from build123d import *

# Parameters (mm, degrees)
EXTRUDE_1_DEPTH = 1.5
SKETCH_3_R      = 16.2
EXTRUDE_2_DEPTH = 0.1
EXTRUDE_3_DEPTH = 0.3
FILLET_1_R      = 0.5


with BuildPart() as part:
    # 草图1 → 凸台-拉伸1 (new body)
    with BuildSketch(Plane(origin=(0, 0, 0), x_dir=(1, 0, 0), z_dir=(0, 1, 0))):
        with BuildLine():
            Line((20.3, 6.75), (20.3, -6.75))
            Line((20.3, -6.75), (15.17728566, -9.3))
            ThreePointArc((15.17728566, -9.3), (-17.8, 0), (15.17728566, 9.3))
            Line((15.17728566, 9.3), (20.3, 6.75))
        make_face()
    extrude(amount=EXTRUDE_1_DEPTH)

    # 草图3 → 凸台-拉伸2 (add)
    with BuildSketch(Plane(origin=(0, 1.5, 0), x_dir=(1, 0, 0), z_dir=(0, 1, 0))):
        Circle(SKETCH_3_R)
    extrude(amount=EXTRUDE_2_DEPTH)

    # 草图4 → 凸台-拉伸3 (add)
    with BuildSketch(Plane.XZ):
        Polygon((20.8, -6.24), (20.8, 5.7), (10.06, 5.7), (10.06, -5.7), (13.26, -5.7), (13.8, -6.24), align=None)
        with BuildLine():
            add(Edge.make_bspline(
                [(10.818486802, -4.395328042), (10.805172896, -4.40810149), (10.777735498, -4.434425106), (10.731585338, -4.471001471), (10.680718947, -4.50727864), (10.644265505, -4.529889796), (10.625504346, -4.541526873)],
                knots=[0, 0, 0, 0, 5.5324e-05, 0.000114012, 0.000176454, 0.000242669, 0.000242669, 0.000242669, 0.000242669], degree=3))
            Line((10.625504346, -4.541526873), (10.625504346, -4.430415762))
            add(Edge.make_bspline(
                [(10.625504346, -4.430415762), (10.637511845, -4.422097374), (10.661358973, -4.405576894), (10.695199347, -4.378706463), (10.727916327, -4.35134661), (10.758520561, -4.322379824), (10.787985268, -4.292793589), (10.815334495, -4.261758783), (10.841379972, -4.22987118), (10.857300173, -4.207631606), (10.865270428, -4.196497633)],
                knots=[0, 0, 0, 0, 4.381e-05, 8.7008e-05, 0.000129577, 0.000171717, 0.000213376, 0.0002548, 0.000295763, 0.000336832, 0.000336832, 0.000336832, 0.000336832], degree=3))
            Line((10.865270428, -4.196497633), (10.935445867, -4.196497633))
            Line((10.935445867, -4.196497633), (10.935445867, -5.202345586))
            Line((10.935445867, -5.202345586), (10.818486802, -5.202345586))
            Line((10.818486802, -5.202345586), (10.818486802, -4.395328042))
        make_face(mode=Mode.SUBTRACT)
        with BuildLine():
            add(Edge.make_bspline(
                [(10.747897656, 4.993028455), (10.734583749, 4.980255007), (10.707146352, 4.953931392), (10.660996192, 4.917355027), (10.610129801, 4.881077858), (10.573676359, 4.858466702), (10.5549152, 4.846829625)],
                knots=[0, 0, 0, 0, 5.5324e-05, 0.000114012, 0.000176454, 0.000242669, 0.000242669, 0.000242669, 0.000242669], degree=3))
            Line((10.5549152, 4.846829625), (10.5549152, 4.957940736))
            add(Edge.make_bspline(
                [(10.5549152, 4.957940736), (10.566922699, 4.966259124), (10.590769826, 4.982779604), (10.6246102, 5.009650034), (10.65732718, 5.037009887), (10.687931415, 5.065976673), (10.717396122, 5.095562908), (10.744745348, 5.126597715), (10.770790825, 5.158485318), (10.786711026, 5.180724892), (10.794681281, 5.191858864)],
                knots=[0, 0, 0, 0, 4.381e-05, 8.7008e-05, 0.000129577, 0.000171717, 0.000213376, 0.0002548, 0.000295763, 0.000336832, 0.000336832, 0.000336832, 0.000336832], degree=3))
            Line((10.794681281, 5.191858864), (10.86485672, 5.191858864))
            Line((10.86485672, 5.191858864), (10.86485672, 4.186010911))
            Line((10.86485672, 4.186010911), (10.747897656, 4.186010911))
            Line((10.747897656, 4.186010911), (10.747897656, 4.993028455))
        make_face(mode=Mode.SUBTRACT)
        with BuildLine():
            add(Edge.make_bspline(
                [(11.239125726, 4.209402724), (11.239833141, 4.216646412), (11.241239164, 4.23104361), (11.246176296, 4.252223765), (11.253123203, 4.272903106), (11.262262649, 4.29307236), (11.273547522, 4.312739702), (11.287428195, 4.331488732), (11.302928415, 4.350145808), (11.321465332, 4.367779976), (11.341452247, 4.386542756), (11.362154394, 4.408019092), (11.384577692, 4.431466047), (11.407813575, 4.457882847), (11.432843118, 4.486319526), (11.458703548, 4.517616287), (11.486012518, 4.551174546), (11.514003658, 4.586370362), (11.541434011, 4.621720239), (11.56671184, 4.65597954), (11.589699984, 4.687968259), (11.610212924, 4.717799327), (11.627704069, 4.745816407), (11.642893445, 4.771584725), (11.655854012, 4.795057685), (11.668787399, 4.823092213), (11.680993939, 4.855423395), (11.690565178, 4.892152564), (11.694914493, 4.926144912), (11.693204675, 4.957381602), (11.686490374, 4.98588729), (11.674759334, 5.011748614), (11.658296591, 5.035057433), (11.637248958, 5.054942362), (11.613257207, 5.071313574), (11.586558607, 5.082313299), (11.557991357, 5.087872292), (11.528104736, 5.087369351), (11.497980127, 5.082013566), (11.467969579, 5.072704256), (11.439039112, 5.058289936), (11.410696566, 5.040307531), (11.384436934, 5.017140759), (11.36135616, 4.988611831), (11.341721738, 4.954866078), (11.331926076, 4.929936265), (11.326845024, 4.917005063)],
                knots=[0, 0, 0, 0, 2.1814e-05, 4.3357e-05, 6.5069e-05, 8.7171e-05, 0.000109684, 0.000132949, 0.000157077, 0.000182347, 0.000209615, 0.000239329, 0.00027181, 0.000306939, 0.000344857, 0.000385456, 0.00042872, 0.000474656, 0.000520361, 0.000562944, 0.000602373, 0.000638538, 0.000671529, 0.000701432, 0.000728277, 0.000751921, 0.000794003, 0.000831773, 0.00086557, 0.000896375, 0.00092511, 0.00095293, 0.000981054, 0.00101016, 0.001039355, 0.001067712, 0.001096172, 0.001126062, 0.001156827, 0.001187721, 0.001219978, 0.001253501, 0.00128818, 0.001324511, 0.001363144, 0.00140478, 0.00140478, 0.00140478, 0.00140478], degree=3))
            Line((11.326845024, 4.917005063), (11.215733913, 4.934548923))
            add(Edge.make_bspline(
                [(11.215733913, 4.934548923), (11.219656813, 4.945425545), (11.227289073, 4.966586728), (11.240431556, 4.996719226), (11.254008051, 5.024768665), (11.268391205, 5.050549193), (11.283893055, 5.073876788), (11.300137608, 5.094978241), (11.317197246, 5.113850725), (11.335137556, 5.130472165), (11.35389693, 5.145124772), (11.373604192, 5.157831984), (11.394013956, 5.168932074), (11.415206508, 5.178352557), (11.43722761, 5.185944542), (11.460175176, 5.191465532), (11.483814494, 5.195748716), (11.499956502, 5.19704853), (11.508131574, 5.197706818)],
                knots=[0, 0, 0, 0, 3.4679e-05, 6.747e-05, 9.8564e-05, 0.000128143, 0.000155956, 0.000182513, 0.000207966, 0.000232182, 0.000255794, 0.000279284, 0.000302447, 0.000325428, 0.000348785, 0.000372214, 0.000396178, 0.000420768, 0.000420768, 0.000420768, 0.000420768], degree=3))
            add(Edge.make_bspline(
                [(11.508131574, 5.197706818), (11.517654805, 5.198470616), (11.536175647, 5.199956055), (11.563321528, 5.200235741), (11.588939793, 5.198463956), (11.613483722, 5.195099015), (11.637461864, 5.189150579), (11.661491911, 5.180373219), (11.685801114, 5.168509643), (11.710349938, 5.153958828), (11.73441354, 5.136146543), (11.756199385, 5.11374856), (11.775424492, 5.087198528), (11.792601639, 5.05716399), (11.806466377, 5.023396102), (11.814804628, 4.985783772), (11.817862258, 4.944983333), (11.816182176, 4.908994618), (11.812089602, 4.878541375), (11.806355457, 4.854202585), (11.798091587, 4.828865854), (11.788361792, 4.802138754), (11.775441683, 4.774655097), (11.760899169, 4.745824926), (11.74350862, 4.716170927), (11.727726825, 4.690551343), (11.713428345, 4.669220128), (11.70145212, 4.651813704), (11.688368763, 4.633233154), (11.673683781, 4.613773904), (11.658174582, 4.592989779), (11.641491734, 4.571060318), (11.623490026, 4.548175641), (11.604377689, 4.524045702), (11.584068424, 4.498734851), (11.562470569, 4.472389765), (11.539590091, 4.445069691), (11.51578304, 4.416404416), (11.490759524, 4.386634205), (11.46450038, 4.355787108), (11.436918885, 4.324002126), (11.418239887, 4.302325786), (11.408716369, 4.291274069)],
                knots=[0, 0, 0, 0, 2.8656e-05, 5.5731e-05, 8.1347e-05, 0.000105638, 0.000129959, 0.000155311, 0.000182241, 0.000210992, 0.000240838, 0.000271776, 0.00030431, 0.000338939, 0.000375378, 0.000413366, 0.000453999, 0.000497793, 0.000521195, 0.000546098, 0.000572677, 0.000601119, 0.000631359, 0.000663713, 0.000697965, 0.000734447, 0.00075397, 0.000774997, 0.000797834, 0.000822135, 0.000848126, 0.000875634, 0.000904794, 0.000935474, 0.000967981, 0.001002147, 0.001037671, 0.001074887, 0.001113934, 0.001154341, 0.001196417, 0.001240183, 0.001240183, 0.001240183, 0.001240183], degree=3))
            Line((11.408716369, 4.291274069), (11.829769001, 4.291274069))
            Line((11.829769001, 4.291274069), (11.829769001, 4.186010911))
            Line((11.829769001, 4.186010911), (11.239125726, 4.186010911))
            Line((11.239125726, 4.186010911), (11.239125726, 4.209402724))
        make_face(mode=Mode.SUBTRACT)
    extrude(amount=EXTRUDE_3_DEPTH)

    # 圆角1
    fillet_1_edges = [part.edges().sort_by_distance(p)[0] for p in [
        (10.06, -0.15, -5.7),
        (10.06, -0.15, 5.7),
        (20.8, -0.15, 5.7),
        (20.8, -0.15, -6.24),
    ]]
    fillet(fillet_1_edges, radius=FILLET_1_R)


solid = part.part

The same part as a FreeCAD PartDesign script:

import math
import FreeCAD as App
import Part
import Sketcher

V = App.Vector


def edges_at(feature, points):
    """Names of the edges that pass closest to the given points."""
    edges = feature.Shape.Edges
    near = lambda p: min(range(len(edges)), key=lambda i: edges[i].distToShape(Part.Vertex(*p))[0])
    return sorted({f"Edge{near(p) + 1}" for p in points})

doc = App.newDocument("Part")
body = doc.addObject("PartDesign::Body", "Body")

# Sketch on XZ plane
sketch1 = body.newObject("Sketcher::SketchObject", "Sketch")
sketch1.AttachmentSupport = (doc.getObject("XZ_Plane"), [""])
sketch1.MapMode = "FlatFace"
sketch1.addGeometry([
    Part.LineSegment(V(20.3, 6.75, 0), V(20.3, -6.75, 0)),
    Part.LineSegment(V(20.3, -6.75, 0), V(15.177286, -9.3, 0)),
    Part.ArcOfCircle(Part.Circle(V(0, 0, 0), V(0, 0, 1), 17.8), math.radians(31.498209), math.radians(328.501791)),
    Part.LineSegment(V(15.177286, 9.3, 0), V(20.3, 6.75, 0)),
], False)
sketch1.addConstraint([
    Sketcher.Constraint("Coincident", 0, 2, 1, 1),
    Sketcher.Constraint("Coincident", 1, 2, 2, 2),
    Sketcher.Constraint("Coincident", 2, 1, 3, 1),
    Sketcher.Constraint("Coincident", 3, 2, 0, 1),
    Sketcher.Constraint("Vertical", 0),
    Sketcher.Constraint("Coincident", 2, 3, -1, 1),
    Sketcher.Constraint("Vertical", 1, 2, 2, 1),
    Sketcher.Constraint("Equal", 1, 3),
    Sketcher.Constraint("Radius", 2, 17.8),
    Sketcher.Constraint("DistanceY", 0, 2, 0, 1, 13.5),
    Sketcher.Constraint("DistanceX", -1, 1, 0, 2, 20.3),
    Sketcher.Constraint("DistanceY", 1, 2, -1, 1, 9.3),
])
pad1 = body.newObject("PartDesign::Pad", "Pad")
pad1.Profile = sketch1
pad1.Length = 1.5
pad1.Reversed = True

# Sketch on XZ plane
sketch2 = body.newObject("Sketcher::SketchObject", "Sketch001")
sketch2.AttachmentSupport = (doc.getObject("XZ_Plane"), [""])
sketch2.MapMode = "FlatFace"
sketch2.AttachmentOffset = App.Placement(V(0, 0, -1.5), App.Rotation())
sketch2.addGeometry(Part.Circle(V(0, 0, 0), V(0, 0, 1), 16.2), False)
sketch2.addConstraint([
    Sketcher.Constraint("Coincident", 0, 3, -1, 1),
    Sketcher.Constraint("Diameter", 0, 32.4),
])
pad2 = body.newObject("PartDesign::Pad", "Pad001")
pad2.Profile = sketch2
pad2.Length = 0.1
pad2.Reversed = True

# Sketch on XZ plane
sketch3 = body.newObject("Sketcher::SketchObject", "Sketch002")
sketch3.AttachmentSupport = (doc.getObject("XZ_Plane"), [""])
sketch3.MapMode = "FlatFace"
sketch3.addGeometry([
    Part.LineSegment(V(20.8, -6.24, 0), V(20.8, 5.7, 0)),  # 0
    Part.LineSegment(V(20.8, 5.7, 0), V(10.06, 5.7, 0)),  # 1
    Part.LineSegment(V(10.06, 5.7, 0), V(10.06, -5.7, 0)),  # 2
    Part.LineSegment(V(10.06, -5.7, 0), V(13.26, -5.7, 0)),  # 3
    Part.LineSegment(V(13.26, -5.7, 0), V(13.8, -6.24, 0)),  # 4
    Part.LineSegment(V(13.8, -6.24, 0), V(20.8, -6.24, 0)),  # 5
    Part.LineSegment(V(10.818487, -5.202346, 0), V(10.818487, -4.395328, 0)),  # 6
    Part.BSplineCurve([V(10.818487, -4.395328, 0), V(10.805173, -4.408101, 0), V(10.777735, -4.434425, 0), V(10.731585, -4.471001, 0), V(10.680719, -4.507279, 0), V(10.644266, -4.52989, 0), V(10.625504, -4.541527, 0)], [4, 1, 1, 1, 4], [0, 0.000055324, 0.000114012, 0.000176454, 0.000242669], False, 3, [1, 1, 1, 1, 1, 1, 1], False),  # 7
    Part.LineSegment(V(10.625504, -4.541527, 0), V(10.625504, -4.430416, 0)),  # 8
    Part.BSplineCurve([V(10.625504, -4.430416, 0), V(10.637512, -4.422097, 0), V(10.661359, -4.405577, 0), V(10.695199, -4.378706, 0), V(10.727916, -4.351347, 0), V(10.758521, -4.32238, 0), V(10.787985, -4.292794, 0), V(10.815334, -4.261759, 0), V(10.84138, -4.229871, 0), V(10.8573, -4.207632, 0), V(10.86527, -4.196498, 0)], [4, 1, 1, 1, 1, 1, 1, 1, 4], [0, 0.00004381, 0.000087008, 0.000129577, 0.000171717, 0.000213376, 0.0002548, 0.000295763, 0.000336832], False, 3, [1, 1, 1, 1, 1, 1, 1, 1, 1, 1, 1], False),  # 9
    Part.LineSegment(V(10.86527, -4.196498, 0), V(10.935446, -4.196498, 0)),  # 10
    Part.LineSegment(V(10.935446, -4.196498, 0), V(10.935446, -5.202346, 0)),  # 11
    Part.LineSegment(V(10.935446, -5.202346, 0), V(10.818487, -5.202346, 0)),  # 12
    Part.LineSegment(V(10.747898, 4.186011, 0), V(10.747898, 4.993028, 0)),  # 13
    Part.BSplineCurve([V(10.747898, 4.993028, 0), V(10.734584, 4.980255, 0), V(10.707146, 4.953931, 0), V(10.660996, 4.917355, 0), V(10.61013, 4.881078, 0), V(10.573676, 4.858467, 0), V(10.554915, 4.84683, 0)], [4, 1, 1, 1, 4], [0, 0.000055324, 0.000114012, 0.000176454, 0.000242669], False, 3, [1, 1, 1, 1, 1, 1, 1], False),  # 14
    Part.LineSegment(V(10.554915, 4.84683, 0), V(10.554915, 4.957941, 0)),  # 15
    Part.BSplineCurve([V(10.554915, 4.957941, 0), V(10.566923, 4.966259, 0), V(10.59077, 4.98278, 0), V(10.62461, 5.00965, 0), V(10.657327, 5.03701, 0), V(10.687931, 5.065977, 0), V(10.717396, 5.095563, 0), V(10.744745, 5.126598, 0), V(10.770791, 5.158485, 0), V(10.786711, 5.180725, 0), V(10.794681, 5.191859, 0)], [4, 1, 1, 1, 1, 1, 1, 1, 4], [0, 0.00004381, 0.000087008, 0.000129577, 0.000171717, 0.000213376, 0.0002548, 0.000295763, 0.000336832], False, 3, [1, 1, 1, 1, 1, 1, 1, 1, 1, 1, 1], False),  # 16
    Part.LineSegment(V(10.794681, 5.191859, 0), V(10.864857, 5.191859, 0)),  # 17
    Part.LineSegment(V(10.864857, 5.191859, 0), V(10.864857, 4.186011, 0)),  # 18
    Part.LineSegment(V(10.864857, 4.186011, 0), V(10.747898, 4.186011, 0)),  # 19
    Part.LineSegment(V(11.239126, 4.186011, 0), V(11.239126, 4.209403, 0)),  # 20
    Part.BSplineCurve([V(11.239126, 4.209403, 0), V(11.239833, 4.216646, 0), V(11.241239, 4.231044, 0), V(11.246176, 4.252224, 0), V(11.253123, 4.272903, 0), V(11.262263, 4.293072, 0), V(11.273548, 4.31274, 0), V(11.287428, 4.331489, 0), V(11.302928, 4.350146, 0), V(11.321465, 4.36778, 0), V(11.341452, 4.386543, 0), V(11.362154, 4.408019, 0), V(11.384578, 4.431466, 0), V(11.407814, 4.457883, 0), V(11.432843, 4.48632, 0), V(11.458704, 4.517616, 0), V(11.486013, 4.551175, 0), V(11.514004, 4.58637, 0), V(11.541434, 4.62172, 0), V(11.566712, 4.65598, 0), V(11.5897, 4.687968, 0), V(11.610213, 4.717799, 0), V(11.627704, 4.745816, 0), V(11.642893, 4.771585, 0), V(11.655854, 4.795058, 0), V(11.668787, 4.823092, 0), V(11.680994, 4.855423, 0), V(11.690565, 4.892153, 0), V(11.694914, 4.926145, 0), V(11.693205, 4.957382, 0), V(11.68649, 4.985887, 0), V(11.674759, 5.011749, 0), V(11.658297, 5.035057, 0), V(11.637249, 5.054942, 0), V(11.613257, 5.071314, 0), V(11.586559, 5.082313, 0), V(11.557991, 5.087872, 0), V(11.528105, 5.087369, 0), V(11.49798, 5.082014, 0), V(11.46797, 5.072704, 0), V(11.439039, 5.05829, 0), V(11.410697, 5.040308, 0), V(11.384437, 5.017141, 0), V(11.361356, 4.988612, 0), V(11.341722, 4.954866, 0), V(11.331926, 4.929936, 0), V(11.326845, 4.917005, 0)], [4, 1, 1, 1, 1, 1, 1, 1, 1, 1, 1, 1, 1, 1, 1, 1, 1, 1, 1, 1, 1, 1, 1, 1, 1, 1, 1, 1, 1, 1, 1, 1, 1, 1, 1, 1, 1, 1, 1, 1, 1, 1, 1, 1, 4], [0, 0.000021814, 0.000043357, 0.000065069, 0.000087171, 0.000109684, 0.000132949, 0.000157077, 0.000182347, 0.000209615, 0.000239329, 0.00027181, 0.000306939, 0.000344857, 0.000385456, 0.00042872, 0.000474656, 0.000520361, 0.000562944, 0.000602373, 0.000638538, 0.000671529, 0.000701432, 0.000728277, 0.000751921, 0.000794003, 0.000831773, 0.00086557, 0.000896375, 0.00092511, 0.00095293, 0.000981054, 0.00101016, 0.001039355, 0.001067712, 0.001096172, 0.001126062, 0.001156827, 0.001187721, 0.001219978, 0.001253501, 0.00128818, 0.001324511, 0.001363144, 0.00140478], False, 3, [1, 1, 1, 1, 1, 1, 1, 1, 1, 1, 1, 1, 1, 1, 1, 1, 1, 1, 1, 1, 1, 1, 1, 1, 1, 1, 1, 1, 1, 1, 1, 1, 1, 1, 1, 1, 1, 1, 1, 1, 1, 1, 1, 1, 1, 1, 1], False),  # 21
    Part.LineSegment(V(11.326845, 4.917005, 0), V(11.215734, 4.934549, 0)),  # 22
    Part.BSplineCurve([V(11.215734, 4.934549, 0), V(11.219657, 4.945426, 0), V(11.227289, 4.966587, 0), V(11.240432, 4.996719, 0), V(11.254008, 5.024769, 0), V(11.268391, 5.050549, 0), V(11.283893, 5.073877, 0), V(11.300138, 5.094978, 0), V(11.317197, 5.113851, 0), V(11.335138, 5.130472, 0), V(11.353897, 5.145125, 0), V(11.373604, 5.157832, 0), V(11.394014, 5.168932, 0), V(11.415207, 5.178353, 0), V(11.437228, 5.185945, 0), V(11.460175, 5.191466, 0), V(11.483814, 5.195749, 0), V(11.499957, 5.197049, 0), V(11.508132, 5.197707, 0)], [4, 1, 1, 1, 1, 1, 1, 1, 1, 1, 1, 1, 1, 1, 1, 1, 4], [0, 0.000034679, 0.00006747, 0.000098564, 0.000128143, 0.000155956, 0.000182513, 0.000207966, 0.000232182, 0.000255794, 0.000279284, 0.000302447, 0.000325428, 0.000348785, 0.000372214, 0.000396178, 0.000420768], False, 3, [1, 1, 1, 1, 1, 1, 1, 1, 1, 1, 1, 1, 1, 1, 1, 1, 1, 1, 1], False),  # 23
    Part.BSplineCurve([V(11.508132, 5.197707, 0), V(11.517655, 5.198471, 0), V(11.536176, 5.199956, 0), V(11.563322, 5.200236, 0), V(11.58894, 5.198464, 0), V(11.613484, 5.195099, 0), V(11.637462, 5.189151, 0), V(11.661492, 5.180373, 0), V(11.685801, 5.16851, 0), V(11.71035, 5.153959, 0), V(11.734414, 5.136147, 0), V(11.756199, 5.113749, 0), V(11.775424, 5.087199, 0), V(11.792602, 5.057164, 0), V(11.806466, 5.023396, 0), V(11.814805, 4.985784, 0), V(11.817862, 4.944983, 0), V(11.816182, 4.908995, 0), V(11.81209, 4.878541, 0), V(11.806355, 4.854203, 0), V(11.798092, 4.828866, 0), V(11.788362, 4.802139, 0), V(11.775442, 4.774655, 0), V(11.760899, 4.745825, 0), V(11.743509, 4.716171, 0), V(11.727727, 4.690551, 0), V(11.713428, 4.66922, 0), V(11.701452, 4.651814, 0), V(11.688369, 4.633233, 0), V(11.673684, 4.613774, 0), V(11.658175, 4.59299, 0), V(11.641492, 4.57106, 0), V(11.62349, 4.548176, 0), V(11.604378, 4.524046, 0), V(11.584068, 4.498735, 0), V(11.562471, 4.47239, 0), V(11.53959, 4.44507, 0), V(11.515783, 4.416404, 0), V(11.49076, 4.386634, 0), V(11.4645, 4.355787, 0), V(11.436919, 4.324002, 0), V(11.41824, 4.302326, 0), V(11.408716, 4.291274, 0)], [4, 1, 1, 1, 1, 1, 1, 1, 1, 1, 1, 1, 1, 1, 1, 1, 1, 1, 1, 1, 1, 1, 1, 1, 1, 1, 1, 1, 1, 1, 1, 1, 1, 1, 1, 1, 1, 1, 1, 1, 4], [0, 0.000028656, 0.000055731, 0.000081347, 0.000105638, 0.000129959, 0.000155311, 0.000182241, 0.000210992, 0.000240838, 0.000271776, 0.00030431, 0.000338939, 0.000375378, 0.000413366, 0.000453999, 0.000497793, 0.000521195, 0.000546098, 0.000572677, 0.000601119, 0.000631359, 0.000663713, 0.000697965, 0.000734447, 0.00075397, 0.000774997, 0.000797834, 0.000822135, 0.000848126, 0.000875634, 0.000904794, 0.000935474, 0.000967981, 0.001002147, 0.001037671, 0.001074887, 0.001113934, 0.001154341, 0.001196417, 0.001240183], False, 3, [1, 1, 1, 1, 1, 1, 1, 1, 1, 1, 1, 1, 1, 1, 1, 1, 1, 1, 1, 1, 1, 1, 1, 1, 1, 1, 1, 1, 1, 1, 1, 1, 1, 1, 1, 1, 1, 1, 1, 1, 1, 1, 1], False),  # 24
    Part.LineSegment(V(11.408716, 4.291274, 0), V(11.829769, 4.291274, 0)),  # 25
    Part.LineSegment(V(11.829769, 4.291274, 0), V(11.829769, 4.186011, 0)),  # 26
    Part.LineSegment(V(11.829769, 4.186011, 0), V(11.239126, 4.186011, 0)),  # 27
], False)
sketch3.addConstraint([
    Sketcher.Constraint("Block", 7),
    Sketcher.Constraint("Block", 9),
    Sketcher.Constraint("Block", 14),
    Sketcher.Constraint("Block", 16),
    Sketcher.Constraint("Block", 21),
    Sketcher.Constraint("Block", 23),
    Sketcher.Constraint("Block", 24),
    Sketcher.Constraint("Coincident", 0, 2, 1, 1),
    Sketcher.Constraint("Coincident", 1, 2, 2, 1),
    Sketcher.Constraint("Coincident", 2, 2, 3, 1),
    Sketcher.Constraint("Coincident", 3, 2, 4, 1),
    Sketcher.Constraint("Coincident", 4, 2, 5, 1),
    Sketcher.Constraint("Coincident", 5, 2, 0, 1),
    Sketcher.Constraint("Coincident", 6, 2, 7, 1),
    Sketcher.Constraint("Coincident", 7, 2, 8, 1),
    Sketcher.Constraint("Coincident", 8, 2, 9, 1),
    Sketcher.Constraint("Coincident", 9, 2, 10, 1),
    Sketcher.Constraint("Coincident", 10, 2, 11, 1),
    Sketcher.Constraint("Coincident", 11, 2, 12, 1),
    Sketcher.Constraint("Coincident", 12, 2, 6, 1),
    Sketcher.Constraint("Coincident", 13, 2, 14, 1),
    Sketcher.Constraint("Coincident", 14, 2, 15, 1),
    Sketcher.Constraint("Coincident", 15, 2, 16, 1),
    Sketcher.Constraint("Coincident", 16, 2, 17, 1),
    Sketcher.Constraint("Coincident", 17, 2, 18, 1),
    Sketcher.Constraint("Coincident", 18, 2, 19, 1),
    Sketcher.Constraint("Coincident", 19, 2, 13, 1),
    Sketcher.Constraint("Coincident", 20, 2, 21, 1),
    Sketcher.Constraint("Coincident", 21, 2, 22, 1),
    Sketcher.Constraint("Coincident", 22, 2, 23, 1),
    Sketcher.Constraint("Coincident", 24, 2, 25, 1),
    Sketcher.Constraint("Coincident", 25, 2, 26, 1),
    Sketcher.Constraint("Coincident", 26, 2, 27, 1),
    Sketcher.Constraint("Coincident", 27, 2, 20, 1),
    Sketcher.Constraint("Vertical", 0),
    Sketcher.Constraint("Horizontal", 1),
    Sketcher.Constraint("Vertical", 2),
    Sketcher.Constraint("Horizontal", 3),
    Sketcher.Constraint("Horizontal", 5),
    Sketcher.Constraint("Vertical", 6),
    Sketcher.Constraint("Horizontal", 10),
    Sketcher.Constraint("Vertical", 11),
    Sketcher.Constraint("Horizontal", 12),
    Sketcher.Constraint("Vertical", 13),
    Sketcher.Constraint("Horizontal", 17),
    Sketcher.Constraint("Vertical", 18),
    Sketcher.Constraint("Horizontal", 19),
    Sketcher.Constraint("Vertical", 20),
    Sketcher.Constraint("Horizontal", 25),
    Sketcher.Constraint("Vertical", 26),
    Sketcher.Constraint("Horizontal", 27),
    Sketcher.Constraint("DistanceX", 5, 1, 5, 2, 7.0),
    Sketcher.Constraint("DistanceX", 3, 1, 3, 2, 3.2),
    Sketcher.Constraint("DistanceY", 2, 2, 2, 1, 11.4),
    Sketcher.Constraint("DistanceX", 1, 2, 1, 1, 10.74),
    Sketcher.Constraint("DistanceY", 0, 1, 0, 2, 11.94),
    Sketcher.Constraint("DistanceX", -1, 1, 0, 2, 20.8),
    Sketcher.Constraint("DistanceY", -1, 1, 0, 2, 5.7),
    Sketcher.Constraint("DistanceX", 12, 2, 12, 1, 0.116959),
    Sketcher.Constraint("DistanceX", 19, 2, 19, 1, 0.116959),
    Sketcher.Constraint("DistanceY", 20, 1, 20, 2, 0.023392),
    Sketcher.Constraint("DistanceX", 25, 1, 25, 2, 0.421053),
    Sketcher.Constraint("DistanceY", 6, 1, 6, 2, 0.807018),
    Sketcher.Constraint("DistanceY", 13, 1, 13, 2, 0.807018),
])
pad3 = body.newObject("PartDesign::Pad", "Pad002")
pad3.Profile = sketch3
pad3.Length = 0.3
doc.recompute()

fillet = body.newObject("PartDesign::Fillet", "Fillet")
fillet.Base = (pad3, edges_at(pad3, [
    (10.06, -0.15, -5.7),
    (10.06, -0.15, 5.7),
    (20.8, -0.15, 5.7),
    (20.8, -0.15, -6.24),
]))
fillet.Radius = 0.5

doc.recompute()
